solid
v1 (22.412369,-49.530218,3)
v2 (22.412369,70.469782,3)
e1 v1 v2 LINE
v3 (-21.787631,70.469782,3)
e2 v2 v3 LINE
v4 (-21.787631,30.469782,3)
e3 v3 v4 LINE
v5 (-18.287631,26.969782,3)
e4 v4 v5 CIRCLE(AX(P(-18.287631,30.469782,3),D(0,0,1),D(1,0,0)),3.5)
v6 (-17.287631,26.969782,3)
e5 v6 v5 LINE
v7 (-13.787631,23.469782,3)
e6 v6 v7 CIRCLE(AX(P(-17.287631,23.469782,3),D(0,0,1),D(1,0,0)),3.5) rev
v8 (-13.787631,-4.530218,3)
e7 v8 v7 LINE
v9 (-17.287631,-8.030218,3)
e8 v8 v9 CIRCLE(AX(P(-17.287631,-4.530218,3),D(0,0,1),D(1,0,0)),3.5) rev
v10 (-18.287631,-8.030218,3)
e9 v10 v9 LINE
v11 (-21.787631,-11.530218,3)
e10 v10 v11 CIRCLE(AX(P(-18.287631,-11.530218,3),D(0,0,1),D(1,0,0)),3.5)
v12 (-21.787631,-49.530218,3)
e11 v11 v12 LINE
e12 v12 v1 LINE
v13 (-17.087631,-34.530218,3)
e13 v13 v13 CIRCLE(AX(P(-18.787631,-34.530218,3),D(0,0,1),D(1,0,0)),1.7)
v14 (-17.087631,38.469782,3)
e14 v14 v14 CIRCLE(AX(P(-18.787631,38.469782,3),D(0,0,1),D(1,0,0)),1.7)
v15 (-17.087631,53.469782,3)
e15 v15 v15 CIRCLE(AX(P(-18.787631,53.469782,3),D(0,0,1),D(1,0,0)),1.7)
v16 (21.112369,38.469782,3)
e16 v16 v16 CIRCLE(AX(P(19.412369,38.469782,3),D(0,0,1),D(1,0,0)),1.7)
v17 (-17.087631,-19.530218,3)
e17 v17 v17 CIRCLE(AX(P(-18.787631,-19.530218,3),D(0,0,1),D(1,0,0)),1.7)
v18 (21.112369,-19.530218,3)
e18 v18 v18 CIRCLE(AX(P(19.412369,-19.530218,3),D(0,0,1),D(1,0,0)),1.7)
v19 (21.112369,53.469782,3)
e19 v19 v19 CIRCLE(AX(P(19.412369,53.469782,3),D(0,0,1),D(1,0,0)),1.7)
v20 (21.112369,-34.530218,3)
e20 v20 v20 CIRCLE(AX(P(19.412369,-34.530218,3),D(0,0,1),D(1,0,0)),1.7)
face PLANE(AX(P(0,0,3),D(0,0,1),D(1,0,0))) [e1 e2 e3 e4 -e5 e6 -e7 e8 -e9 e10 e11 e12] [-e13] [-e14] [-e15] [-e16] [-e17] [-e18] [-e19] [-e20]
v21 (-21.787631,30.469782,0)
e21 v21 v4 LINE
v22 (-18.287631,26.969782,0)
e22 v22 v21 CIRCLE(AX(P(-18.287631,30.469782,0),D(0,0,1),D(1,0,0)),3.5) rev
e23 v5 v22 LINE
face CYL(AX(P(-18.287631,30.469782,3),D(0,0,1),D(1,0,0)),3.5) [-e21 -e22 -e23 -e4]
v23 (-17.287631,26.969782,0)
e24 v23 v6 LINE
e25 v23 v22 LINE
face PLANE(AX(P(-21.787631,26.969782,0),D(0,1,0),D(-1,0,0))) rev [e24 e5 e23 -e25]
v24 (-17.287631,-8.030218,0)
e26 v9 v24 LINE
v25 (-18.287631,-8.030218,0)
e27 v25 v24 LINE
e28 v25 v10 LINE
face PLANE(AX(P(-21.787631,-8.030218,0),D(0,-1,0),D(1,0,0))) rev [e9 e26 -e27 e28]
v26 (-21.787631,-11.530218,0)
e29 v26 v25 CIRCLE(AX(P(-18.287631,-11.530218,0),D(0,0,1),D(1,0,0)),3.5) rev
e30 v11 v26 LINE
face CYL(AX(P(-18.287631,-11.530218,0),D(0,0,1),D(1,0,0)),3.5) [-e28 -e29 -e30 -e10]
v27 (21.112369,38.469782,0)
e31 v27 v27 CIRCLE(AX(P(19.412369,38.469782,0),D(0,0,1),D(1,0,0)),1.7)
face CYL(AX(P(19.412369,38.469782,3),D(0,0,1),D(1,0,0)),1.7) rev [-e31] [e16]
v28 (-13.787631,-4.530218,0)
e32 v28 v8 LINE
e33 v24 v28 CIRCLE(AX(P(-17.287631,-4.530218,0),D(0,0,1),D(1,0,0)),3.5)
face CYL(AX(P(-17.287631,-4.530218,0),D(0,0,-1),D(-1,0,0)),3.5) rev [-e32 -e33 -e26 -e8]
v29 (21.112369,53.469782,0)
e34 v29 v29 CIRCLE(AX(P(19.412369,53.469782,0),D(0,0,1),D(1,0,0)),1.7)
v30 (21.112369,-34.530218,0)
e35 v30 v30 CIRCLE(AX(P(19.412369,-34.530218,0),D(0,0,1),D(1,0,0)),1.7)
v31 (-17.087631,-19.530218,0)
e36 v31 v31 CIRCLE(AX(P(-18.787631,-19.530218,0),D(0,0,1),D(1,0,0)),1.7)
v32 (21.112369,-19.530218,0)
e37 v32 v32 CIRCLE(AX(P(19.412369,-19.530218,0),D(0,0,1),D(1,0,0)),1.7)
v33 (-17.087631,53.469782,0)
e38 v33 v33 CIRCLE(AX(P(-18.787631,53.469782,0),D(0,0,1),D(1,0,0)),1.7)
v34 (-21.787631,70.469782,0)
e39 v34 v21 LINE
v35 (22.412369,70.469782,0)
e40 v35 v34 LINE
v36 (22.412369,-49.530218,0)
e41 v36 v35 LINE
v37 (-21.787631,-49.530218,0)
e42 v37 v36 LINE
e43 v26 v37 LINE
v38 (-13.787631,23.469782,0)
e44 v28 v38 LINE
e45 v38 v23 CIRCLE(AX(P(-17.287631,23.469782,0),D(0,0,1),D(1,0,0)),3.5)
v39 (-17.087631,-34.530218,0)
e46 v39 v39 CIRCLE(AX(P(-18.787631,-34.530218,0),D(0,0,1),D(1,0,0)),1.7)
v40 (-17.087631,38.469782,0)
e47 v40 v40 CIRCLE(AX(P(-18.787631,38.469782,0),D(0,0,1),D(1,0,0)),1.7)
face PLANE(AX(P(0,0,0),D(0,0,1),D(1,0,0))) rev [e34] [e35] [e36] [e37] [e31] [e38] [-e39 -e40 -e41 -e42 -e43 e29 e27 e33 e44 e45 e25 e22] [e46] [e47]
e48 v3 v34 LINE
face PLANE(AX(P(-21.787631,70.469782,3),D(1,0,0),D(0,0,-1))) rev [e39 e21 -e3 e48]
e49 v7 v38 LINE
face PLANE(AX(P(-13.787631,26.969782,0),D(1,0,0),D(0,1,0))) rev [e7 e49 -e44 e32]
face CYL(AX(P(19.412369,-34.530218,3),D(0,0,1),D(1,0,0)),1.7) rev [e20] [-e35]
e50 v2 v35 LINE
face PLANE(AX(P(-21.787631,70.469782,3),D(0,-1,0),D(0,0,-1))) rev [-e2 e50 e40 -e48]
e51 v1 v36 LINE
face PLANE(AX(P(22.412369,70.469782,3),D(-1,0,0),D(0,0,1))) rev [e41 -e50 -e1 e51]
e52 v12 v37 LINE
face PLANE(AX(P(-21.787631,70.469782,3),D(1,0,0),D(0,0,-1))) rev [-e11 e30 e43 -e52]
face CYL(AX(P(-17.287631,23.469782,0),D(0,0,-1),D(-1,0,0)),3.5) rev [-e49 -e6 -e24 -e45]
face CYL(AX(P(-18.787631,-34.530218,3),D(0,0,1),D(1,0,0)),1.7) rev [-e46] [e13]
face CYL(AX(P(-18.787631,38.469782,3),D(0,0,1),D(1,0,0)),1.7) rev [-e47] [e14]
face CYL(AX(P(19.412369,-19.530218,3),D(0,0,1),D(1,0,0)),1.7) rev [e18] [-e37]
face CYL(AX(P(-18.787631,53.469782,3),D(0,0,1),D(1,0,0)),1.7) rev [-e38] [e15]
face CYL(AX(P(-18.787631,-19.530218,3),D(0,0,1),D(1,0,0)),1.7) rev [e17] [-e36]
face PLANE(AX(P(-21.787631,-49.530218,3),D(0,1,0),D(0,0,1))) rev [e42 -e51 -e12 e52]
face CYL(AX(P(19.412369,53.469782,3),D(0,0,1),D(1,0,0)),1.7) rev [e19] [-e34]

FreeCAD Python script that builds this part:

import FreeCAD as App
import Part
import Sketcher
from FreeCAD import Vector
Q = App.Units.Quantity


def edges_at(feature, points):
    """Names of the edges that pass closest to the given points."""
    edges = feature.Shape.Edges
    near = lambda p: min(range(len(edges)), key=lambda i: edges[i].distToShape(Part.Vertex(*p))[0])
    return sorted({f"Edge{near(p) + 1}" for p in points})

doc = App.newDocument("Part")
body = doc.addObject("PartDesign::Body", "Body")

sketch1 = body.newObject("Sketcher::SketchObject", "Sketch")
sketch1.AttachmentSupport = (doc.getObject("XY_Plane"), [""])
sketch1.MapMode = "FlatFace"
sketch1.addGeometry([
    Part.LineSegment(Vector(-21.787631, 70.469782, 0), Vector(-21.787631, -49.530218, 0)),
    Part.LineSegment(Vector(-21.787631, -49.530218, 0), Vector(22.412369, -49.530218, 0)),
    Part.LineSegment(Vector(22.412369, -49.530218, 0), Vector(22.412369, 70.469782, 0)),
    Part.LineSegment(Vector(22.412369, 70.469782, 0), Vector(-21.787631, 70.469782, 0)),
], False)
sketch1.addConstraint([
    Sketcher.Constraint("Coincident", 0, 2, 1, 1),
    Sketcher.Constraint("Coincident", 1, 2, 2, 1),
    Sketcher.Constraint("Coincident", 2, 2, 3, 1),
    Sketcher.Constraint("Coincident", 3, 2, 0, 1),
    Sketcher.Constraint("Vertical", 0),
    Sketcher.Constraint("Horizontal", 1),
    Sketcher.Constraint("Vertical", 2),
    Sketcher.Constraint("Horizontal", 3),
    Sketcher.Constraint("DistanceY", 0, 2, 0, 1, Q("120 mm")),
    Sketcher.Constraint("DistanceX", 1, 1, 1, 2, Q("44.2 mm")),
    Sketcher.Constraint("DistanceX", 0, 2, -1, 1, Q("21.787631 mm")),
    Sketcher.Constraint("DistanceY", 0, 2, -1, 1, Q("49.530218 mm")),
])
pad1 = body.newObject("PartDesign::Pad", "Pad")
pad1.Profile = sketch1
pad1.Length = 3

sketch2 = body.newObject("Sketcher::SketchObject", "Sketch001")
sketch2.AttachmentSupport = (doc.getObject("XY_Plane"), [""])
sketch2.MapMode = "FlatFace"
sketch2.AttachmentOffset = App.Placement(Vector(0, 0, 3), App.Rotation())
sketch2.addGeometry([
    Part.Circle(Vector(-18.787631, 53.469782, 0), Vector(0, 0, 1), 1.7),
    Part.Circle(Vector(-18.787631, 38.469782, 0), Vector(0, 0, 1), 1.7),
    Part.Circle(Vector(-18.787631, -19.530218, 0), Vector(0, 0, 1), 1.7),
    Part.Circle(Vector(-18.787631, -34.530218, 0), Vector(0, 0, 1), 1.7),
    Part.Circle(Vector(19.412369, -34.530218, 0), Vector(0, 0, 1), 1.7),
    Part.Circle(Vector(19.412369, -19.530218, 0), Vector(0, 0, 1), 1.7),
    Part.Circle(Vector(19.412369, 38.469782, 0), Vector(0, 0, 1), 1.7),
    Part.Circle(Vector(19.412369, 53.469782, 0), Vector(0, 0, 1), 1.7),
], False)
sketch2.addConstraint([
    Sketcher.Constraint("Equal", 0, 1),
    Sketcher.Constraint("Equal", 1, 2),
    Sketcher.Constraint("Equal", 2, 3),
    Sketcher.Constraint("Equal", 3, 4),
    Sketcher.Constraint("Equal", 4, 5),
    Sketcher.Constraint("Equal", 5, 6),
    Sketcher.Constraint("Equal", 6, 7),
    Sketcher.Constraint("Horizontal", 3, 3, 4, 3),
    Sketcher.Constraint("Horizontal", 2, 3, 5, 3),
    Sketcher.Constraint("Horizontal", 1, 3, 6, 3),
    Sketcher.Constraint("Horizontal", 0, 3, 7, 3),
    Sketcher.Constraint("Vertical", 0, 3, 1, 3),
    Sketcher.Constraint("Vertical", 1, 3, 2, 3),
    Sketcher.Constraint("Vertical", 2, 3, 3, 3),
    Sketcher.Constraint("Vertical", 4, 3, 5, 3),
    Sketcher.Constraint("Vertical", 5, 3, 6, 3),
    Sketcher.Constraint("Vertical", 6, 3, 7, 3),
    Sketcher.Constraint("Diameter", 0, Q("3.4 mm")),
    Sketcher.Constraint("DistanceY", 1, 3, 0, 3, Q("15 mm")),
    Sketcher.Constraint("DistanceY", 2, 3, 1, 3, Q("58 mm")),
    Sketcher.Constraint("DistanceY", 3, 3, 2, 3, Q("15 mm")),
    Sketcher.Constraint("DistanceX", 3, 3, 4, 3, Q("38.2 mm")),
    Sketcher.Constraint("DistanceX", 0, 3, -1, 1, Q("18.787631 mm")),
    Sketcher.Constraint("DistanceY", -1, 1, 0, 3, Q("53.469782 mm")),
])
doc.recompute()
hole = body.newObject("PartDesign::Hole", "Hole")
hole.Profile = sketch2
hole.ThreadType = "None"
hole.Diameter = 3.4
hole.DepthType = "Dimension"
hole.Depth = 15
hole.DrillPoint = "Angled"
hole.DrillPointAngle = 118

sketch3 = body.newObject("Sketcher::SketchObject", "Sketch002")
sketch3.AttachmentSupport = (doc.getObject("XY_Plane"), [""])
sketch3.MapMode = "FlatFace"
sketch3.AttachmentOffset = App.Placement(Vector(0, 0, 3), App.Rotation())
sketch3.addGeometry([
    Part.LineSegment(Vector(-21.787631, 26.969782, 0), Vector(-21.787631, -8.030218, 0)),
    Part.LineSegment(Vector(-21.787631, -8.030218, 0), Vector(-13.787631, -8.030218, 0)),
    Part.LineSegment(Vector(-13.787631, -8.030218, 0), Vector(-13.787631, 26.969782, 0)),
    Part.LineSegment(Vector(-13.787631, 26.969782, 0), Vector(-21.787631, 26.969782, 0)),
], False)
sketch3.addConstraint([
    Sketcher.Constraint("Coincident", 0, 2, 1, 1),
    Sketcher.Constraint("Coincident", 1, 2, 2, 1),
    Sketcher.Constraint("Coincident", 2, 2, 3, 1),
    Sketcher.Constraint("Coincident", 3, 2, 0, 1),
    Sketcher.Constraint("Vertical", 0),
    Sketcher.Constraint("Horizontal", 1),
    Sketcher.Constraint("Vertical", 2),
    Sketcher.Constraint("Horizontal", 3),
    Sketcher.Constraint("DistanceX", 1, 1, 1, 2, Q("8 mm")),
    Sketcher.Constraint("DistanceY", 0, 2, 0, 1, Q("35 mm")),
    Sketcher.Constraint("DistanceX", 0, 2, -1, 1, Q("21.787631 mm")),
    Sketcher.Constraint("DistanceY", 0, 2, -1, 1, Q("8.030218 mm")),
])
pocket1 = body.newObject("PartDesign::Pocket", "Pocket")
pocket1.Profile = sketch3
pocket1.Type = "ThroughAll"
doc.recompute()

fillet = body.newObject("PartDesign::Fillet", "Fillet")
fillet.Base = (pocket1, edges_at(pocket1, [
    (-21.788, -8.03, 1.5),
    (-21.788, 26.97, 1.5),
    (-13.788, 26.97, 1.5),
    (-13.788, -8.03, 1.5),
]))
fillet.Radius = 3.5

doc.recompute()
